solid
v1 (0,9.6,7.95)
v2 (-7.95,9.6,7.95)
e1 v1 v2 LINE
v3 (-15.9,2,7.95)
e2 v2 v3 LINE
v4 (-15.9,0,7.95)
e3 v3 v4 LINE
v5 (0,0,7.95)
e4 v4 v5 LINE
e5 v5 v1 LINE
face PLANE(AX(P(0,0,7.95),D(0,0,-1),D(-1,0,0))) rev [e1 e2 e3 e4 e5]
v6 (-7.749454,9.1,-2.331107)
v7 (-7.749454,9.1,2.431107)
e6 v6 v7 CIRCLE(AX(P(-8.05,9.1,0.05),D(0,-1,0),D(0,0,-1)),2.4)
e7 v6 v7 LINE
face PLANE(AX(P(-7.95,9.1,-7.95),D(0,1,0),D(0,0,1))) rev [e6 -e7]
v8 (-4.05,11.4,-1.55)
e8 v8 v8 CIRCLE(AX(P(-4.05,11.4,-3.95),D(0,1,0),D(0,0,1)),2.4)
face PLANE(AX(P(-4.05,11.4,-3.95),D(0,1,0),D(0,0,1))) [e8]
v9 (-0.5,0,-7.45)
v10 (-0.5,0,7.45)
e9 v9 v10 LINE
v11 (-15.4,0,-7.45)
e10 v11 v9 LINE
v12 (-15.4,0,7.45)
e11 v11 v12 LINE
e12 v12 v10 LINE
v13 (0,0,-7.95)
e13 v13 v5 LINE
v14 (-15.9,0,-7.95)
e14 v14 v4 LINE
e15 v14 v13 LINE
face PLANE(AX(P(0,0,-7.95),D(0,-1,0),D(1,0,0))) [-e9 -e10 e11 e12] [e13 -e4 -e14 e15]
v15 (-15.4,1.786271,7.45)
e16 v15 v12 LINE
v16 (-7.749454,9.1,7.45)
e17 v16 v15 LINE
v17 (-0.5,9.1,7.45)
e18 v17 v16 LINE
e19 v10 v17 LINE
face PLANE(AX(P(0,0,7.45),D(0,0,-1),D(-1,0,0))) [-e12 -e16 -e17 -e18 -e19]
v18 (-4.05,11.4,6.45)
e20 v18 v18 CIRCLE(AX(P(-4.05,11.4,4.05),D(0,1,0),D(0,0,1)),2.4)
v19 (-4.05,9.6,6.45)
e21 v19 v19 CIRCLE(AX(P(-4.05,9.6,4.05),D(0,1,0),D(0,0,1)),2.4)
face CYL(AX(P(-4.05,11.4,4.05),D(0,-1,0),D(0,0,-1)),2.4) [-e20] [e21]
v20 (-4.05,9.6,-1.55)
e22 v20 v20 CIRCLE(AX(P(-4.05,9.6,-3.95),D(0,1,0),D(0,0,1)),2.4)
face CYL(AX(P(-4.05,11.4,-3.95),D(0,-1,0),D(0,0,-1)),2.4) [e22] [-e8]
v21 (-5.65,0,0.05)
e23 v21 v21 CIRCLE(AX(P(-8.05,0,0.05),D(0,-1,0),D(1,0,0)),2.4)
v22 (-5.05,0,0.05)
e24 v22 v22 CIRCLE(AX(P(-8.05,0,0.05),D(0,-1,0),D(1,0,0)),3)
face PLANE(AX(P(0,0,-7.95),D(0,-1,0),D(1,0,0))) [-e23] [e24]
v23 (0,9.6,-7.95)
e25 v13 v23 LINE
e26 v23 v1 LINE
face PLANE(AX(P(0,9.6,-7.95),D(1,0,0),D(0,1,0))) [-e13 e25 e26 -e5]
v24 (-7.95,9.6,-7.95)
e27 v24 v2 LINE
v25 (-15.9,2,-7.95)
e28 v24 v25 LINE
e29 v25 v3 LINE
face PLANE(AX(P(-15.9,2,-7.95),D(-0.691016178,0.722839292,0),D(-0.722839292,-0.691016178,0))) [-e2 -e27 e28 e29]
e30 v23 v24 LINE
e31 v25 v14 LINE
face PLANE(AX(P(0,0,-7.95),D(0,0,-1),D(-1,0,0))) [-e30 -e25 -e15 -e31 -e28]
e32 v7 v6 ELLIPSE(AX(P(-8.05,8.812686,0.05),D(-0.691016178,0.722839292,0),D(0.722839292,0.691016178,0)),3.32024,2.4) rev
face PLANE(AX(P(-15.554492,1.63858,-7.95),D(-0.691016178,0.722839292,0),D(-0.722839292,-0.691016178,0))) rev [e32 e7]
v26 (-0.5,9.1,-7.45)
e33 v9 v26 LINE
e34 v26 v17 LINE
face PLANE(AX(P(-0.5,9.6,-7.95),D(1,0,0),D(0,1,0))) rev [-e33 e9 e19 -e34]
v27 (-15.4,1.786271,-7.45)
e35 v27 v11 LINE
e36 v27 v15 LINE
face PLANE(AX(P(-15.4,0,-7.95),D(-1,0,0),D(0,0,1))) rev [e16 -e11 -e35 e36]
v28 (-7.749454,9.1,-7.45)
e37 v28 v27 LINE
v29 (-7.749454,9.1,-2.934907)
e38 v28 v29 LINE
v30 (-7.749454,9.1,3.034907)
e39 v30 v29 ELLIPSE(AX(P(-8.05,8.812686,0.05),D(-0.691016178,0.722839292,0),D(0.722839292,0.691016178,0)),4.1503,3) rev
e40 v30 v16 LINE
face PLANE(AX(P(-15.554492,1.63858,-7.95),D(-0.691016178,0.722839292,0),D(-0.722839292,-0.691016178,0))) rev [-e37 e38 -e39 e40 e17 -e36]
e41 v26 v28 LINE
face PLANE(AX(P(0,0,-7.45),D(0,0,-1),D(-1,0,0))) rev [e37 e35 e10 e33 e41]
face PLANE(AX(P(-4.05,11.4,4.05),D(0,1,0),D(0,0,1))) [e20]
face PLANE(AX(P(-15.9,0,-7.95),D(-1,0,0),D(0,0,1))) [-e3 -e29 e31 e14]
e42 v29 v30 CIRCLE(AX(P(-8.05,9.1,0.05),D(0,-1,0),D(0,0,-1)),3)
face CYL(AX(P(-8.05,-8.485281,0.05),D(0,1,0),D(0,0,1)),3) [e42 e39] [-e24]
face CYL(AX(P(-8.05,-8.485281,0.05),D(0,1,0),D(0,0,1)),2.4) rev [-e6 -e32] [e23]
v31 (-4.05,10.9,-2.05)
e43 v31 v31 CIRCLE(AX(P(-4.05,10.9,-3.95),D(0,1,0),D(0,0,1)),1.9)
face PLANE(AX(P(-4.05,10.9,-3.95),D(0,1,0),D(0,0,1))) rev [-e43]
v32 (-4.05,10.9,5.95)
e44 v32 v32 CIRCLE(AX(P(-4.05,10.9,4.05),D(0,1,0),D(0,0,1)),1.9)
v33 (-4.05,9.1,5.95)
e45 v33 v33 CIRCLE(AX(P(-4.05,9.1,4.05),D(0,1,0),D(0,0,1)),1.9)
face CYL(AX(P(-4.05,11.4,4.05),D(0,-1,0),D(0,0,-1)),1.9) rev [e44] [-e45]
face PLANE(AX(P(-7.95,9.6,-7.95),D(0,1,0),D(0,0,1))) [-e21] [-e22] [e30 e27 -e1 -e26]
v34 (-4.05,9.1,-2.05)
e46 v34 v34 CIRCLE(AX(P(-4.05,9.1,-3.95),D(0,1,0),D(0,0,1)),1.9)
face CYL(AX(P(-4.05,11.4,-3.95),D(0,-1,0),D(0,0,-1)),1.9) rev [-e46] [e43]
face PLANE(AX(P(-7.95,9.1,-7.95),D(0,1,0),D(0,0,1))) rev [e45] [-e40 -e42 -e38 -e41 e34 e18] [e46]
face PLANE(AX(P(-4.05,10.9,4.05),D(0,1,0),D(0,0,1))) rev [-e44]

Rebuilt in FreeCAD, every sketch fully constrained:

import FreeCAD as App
import Part
import Sketcher
from FreeCAD import Vector
Q = App.Units.Quantity


def faces_at(feature, points):
    """Names of the faces that lie closest to the given points."""
    faces = feature.Shape.Faces
    near = lambda p: min(range(len(faces)), key=lambda i: faces[i].distToShape(Part.Vertex(*p))[0])
    return sorted({f"Face{near(p) + 1}" for p in points})


def add_polygon(sketch, points):
    """Adds a closed chain of lines whose ends are joined by coincident constraints."""
    first, n = sketch.GeometryCount, len(points)
    for a, b in zip(points, points[1:] + points[:1]):
        sketch.addGeometry(Part.LineSegment(App.Vector(*a, 0), App.Vector(*b, 0)), False)
    for i in range(n):
        sketch.addConstraint(Sketcher.Constraint("Coincident", first + i, 2, first + (i + 1) % n, 1))

doc = App.newDocument("Part")
params = doc.addObject("Spreadsheet::Sheet", "Params")
for row, (alias, value) in enumerate([
    ("sketch1_height", "2 mm"),
    ("sketch1_width", "15.9 mm"),
    ("sketch1_height2", "9.6 mm"),
    ("sketch1_width2", "7.95 mm"),
    ("pad1_length", "15.9 mm"),
    ("sketch2_diameter", "4.8 mm"),
    ("pad2_length", "1.8 mm"),
    ("linearpattern_pitch", "8 mm"),
    ("thickness_wall", "0.5 mm"),
    ("sketch3_diameter", "6 mm"),
    ("sketch3_diameter2", "4.8 mm"),
    ("pad3_length", "9.1 mm"),
    ("sketch4_height", "15.9 mm"),
], start=1):
    params.set(f"A{row}", alias)
    params.set(f"B{row}", "=" + value)
    params.setAlias(f"B{row}", alias)

body = doc.addObject("PartDesign::Body", "Body")

# Sketch on XY plane
sketch1 = body.newObject("Sketcher::SketchObject", "Sketch")
sketch1.AttachmentSupport = (doc.getObject("XY_Plane"), [""])
sketch1.MapMode = "FlatFace"
add_polygon(sketch1, [(-15.9, 0), (0, 0), (0, 9.6), (-7.95, 9.6), (-15.9, 2)])  # lines 0-4
sketch1.addConstraint([
    Sketcher.Constraint("Horizontal", 0),
    Sketcher.Constraint("Vertical", 1),
    Sketcher.Constraint("Horizontal", 2),
    Sketcher.Constraint("Vertical", 4),
    Sketcher.Constraint("Coincident", 0, 2, -1, 1),
    Sketcher.Constraint("DistanceY", 4, 2, 4, 1, Q("2 mm")),
    Sketcher.Constraint("DistanceX", 0, 1, 0, 2, Q("15.9 mm")),
    Sketcher.Constraint("DistanceY", 1, 1, 1, 2, Q("9.6 mm")),
    Sketcher.Constraint("DistanceX", 2, 2, 2, 1, Q("7.95 mm")),
])
sketch1.setExpression("Constraints[10]", "Params.sketch1_height")
sketch1.setExpression("Constraints[11]", "Params.sketch1_width")
sketch1.setExpression("Constraints[12]", "Params.sketch1_height2")
sketch1.setExpression("Constraints[13]", "Params.sketch1_width2")
pad1 = body.newObject("PartDesign::Pad", "Pad")
pad1.Profile = sketch1
pad1.setExpression("Length", "Params.pad1_length")
pad1.Midplane = True

# Sketch on XZ plane
sketch2 = body.newObject("Sketcher::SketchObject", "Sketch001")
sketch2.AttachmentSupport = (doc.getObject("XZ_Plane"), [""])
sketch2.MapMode = "FlatFace"
sketch2.AttachmentOffset = App.Placement(Vector(0, 0, -9.6), App.Rotation())
sketch2.addGeometry(Part.Circle(Vector(-4.05, 4.05, 0), Vector(0, 0, 1), 2.4), False)
sketch2.addConstraint([
    Sketcher.Constraint("Diameter", 0, Q("4.8 mm")),
    Sketcher.Constraint("DistanceX", 0, 3, -1, 1, Q("4.05 mm")),
    Sketcher.Constraint("DistanceY", -1, 1, 0, 3, Q("4.05 mm")),
])
sketch2.setExpression("Constraints[0]", "Params.sketch2_diameter")
pad2 = body.newObject("PartDesign::Pad", "Pad001")
pad2.Profile = sketch2
pad2.setExpression("Length", "Params.pad2_length")
pad2.Reversed = True
doc.recompute()

linearpattern = body.newObject("PartDesign::LinearPattern", "LinearPattern")
linearpattern.Originals = [pad2]
linearpattern.Direction = (doc.getObject("Z_Axis"), [""])
linearpattern.Mode = "offset"
linearpattern.setExpression("Offset", "Params.linearpattern_pitch")
linearpattern.Occurrences = 2
linearpattern.Reversed = True
body.Tip = linearpattern
doc.recompute()

thickness = body.newObject("PartDesign::Thickness", "Thickness")
thickness.Base = (linearpattern, faces_at(linearpattern, [(-7.95, 0, 0)]))
thickness.setExpression("Value", "Params.thickness_wall")
thickness.Reversed = True
thickness.Join = "Intersection"

# Sketch on XZ plane
sketch3 = body.newObject("Sketcher::SketchObject", "Sketch002")
sketch3.AttachmentSupport = (doc.getObject("XZ_Plane"), [""])
sketch3.MapMode = "FlatFace"
sketch3.AttachmentOffset = App.Placement(Vector(0, 0, -9.1), App.Rotation())
sketch3.addGeometry([
    Part.Circle(Vector(-8.05, 0.05, 0), Vector(0, 0, 1), 3),
    Part.Circle(Vector(-8.05, 0.05, 0), Vector(0, 0, 1), 2.4),
], False)
sketch3.addConstraint([
    Sketcher.Constraint("Coincident", 1, 3, 0, 3),
    Sketcher.Constraint("Diameter", 0, Q("6 mm")),
    Sketcher.Constraint("Diameter", 1, Q("4.8 mm")),
    Sketcher.Constraint("DistanceX", 0, 3, -1, 1, Q("8.05 mm")),
    Sketcher.Constraint("DistanceY", -1, 1, 0, 3, Q("0.05 mm")),
])
sketch3.setExpression("Constraints[1]", "Params.sketch3_diameter")
sketch3.setExpression("Constraints[2]", "Params.sketch3_diameter2")
pad3 = body.newObject("PartDesign::Pad", "Pad002")
pad3.Profile = sketch3
pad3.setExpression("Length", "Params.pad3_length")

# Sketch on an angled plane
sketch4 = body.newObject("Sketcher::SketchObject", "Sketch003")
sketch4.Placement = App.Placement(Vector(-8.591291, 8.986942, 0), App.Rotation(Vector(0.722839292, 0.691016178, 0), Vector(0, 0, -1), Vector(-0.691016178, 0.722839292, 0), "ZXY"))
add_polygon(sketch4, [(-10.111112, 7.95), (-10.111112, -7.95), (0.887183, -7.95), (0.887183, 7.95)])  # lines 0-3
sketch4.addConstraint([
    Sketcher.Constraint("Vertical", 0),
    Sketcher.Constraint("Horizontal", 1),
    Sketcher.Constraint("Vertical", 2),
    Sketcher.Constraint("Horizontal", 3),
    Sketcher.Constraint("DistanceY", 0, 2, 0, 1, Q("15.9 mm")),
    Sketcher.Constraint("DistanceY", 0, 2, -1, 1, Q("7.95 mm")),
    Sketcher.Constraint("DistanceX", 1, 1, 1, 2, Q("10.998295 mm")),
    Sketcher.Constraint("DistanceX", 0, 2, -1, 1, Q("10.111112 mm")),
])
sketch4.setExpression("Constraints[8]", "Params.sketch4_height")
pocket1 = body.newObject("PartDesign::Pocket", "Pocket")
pocket1.Profile = sketch4
pocket1.Type = "ThroughAll"
pocket1.Reversed = True

doc.recompute()
